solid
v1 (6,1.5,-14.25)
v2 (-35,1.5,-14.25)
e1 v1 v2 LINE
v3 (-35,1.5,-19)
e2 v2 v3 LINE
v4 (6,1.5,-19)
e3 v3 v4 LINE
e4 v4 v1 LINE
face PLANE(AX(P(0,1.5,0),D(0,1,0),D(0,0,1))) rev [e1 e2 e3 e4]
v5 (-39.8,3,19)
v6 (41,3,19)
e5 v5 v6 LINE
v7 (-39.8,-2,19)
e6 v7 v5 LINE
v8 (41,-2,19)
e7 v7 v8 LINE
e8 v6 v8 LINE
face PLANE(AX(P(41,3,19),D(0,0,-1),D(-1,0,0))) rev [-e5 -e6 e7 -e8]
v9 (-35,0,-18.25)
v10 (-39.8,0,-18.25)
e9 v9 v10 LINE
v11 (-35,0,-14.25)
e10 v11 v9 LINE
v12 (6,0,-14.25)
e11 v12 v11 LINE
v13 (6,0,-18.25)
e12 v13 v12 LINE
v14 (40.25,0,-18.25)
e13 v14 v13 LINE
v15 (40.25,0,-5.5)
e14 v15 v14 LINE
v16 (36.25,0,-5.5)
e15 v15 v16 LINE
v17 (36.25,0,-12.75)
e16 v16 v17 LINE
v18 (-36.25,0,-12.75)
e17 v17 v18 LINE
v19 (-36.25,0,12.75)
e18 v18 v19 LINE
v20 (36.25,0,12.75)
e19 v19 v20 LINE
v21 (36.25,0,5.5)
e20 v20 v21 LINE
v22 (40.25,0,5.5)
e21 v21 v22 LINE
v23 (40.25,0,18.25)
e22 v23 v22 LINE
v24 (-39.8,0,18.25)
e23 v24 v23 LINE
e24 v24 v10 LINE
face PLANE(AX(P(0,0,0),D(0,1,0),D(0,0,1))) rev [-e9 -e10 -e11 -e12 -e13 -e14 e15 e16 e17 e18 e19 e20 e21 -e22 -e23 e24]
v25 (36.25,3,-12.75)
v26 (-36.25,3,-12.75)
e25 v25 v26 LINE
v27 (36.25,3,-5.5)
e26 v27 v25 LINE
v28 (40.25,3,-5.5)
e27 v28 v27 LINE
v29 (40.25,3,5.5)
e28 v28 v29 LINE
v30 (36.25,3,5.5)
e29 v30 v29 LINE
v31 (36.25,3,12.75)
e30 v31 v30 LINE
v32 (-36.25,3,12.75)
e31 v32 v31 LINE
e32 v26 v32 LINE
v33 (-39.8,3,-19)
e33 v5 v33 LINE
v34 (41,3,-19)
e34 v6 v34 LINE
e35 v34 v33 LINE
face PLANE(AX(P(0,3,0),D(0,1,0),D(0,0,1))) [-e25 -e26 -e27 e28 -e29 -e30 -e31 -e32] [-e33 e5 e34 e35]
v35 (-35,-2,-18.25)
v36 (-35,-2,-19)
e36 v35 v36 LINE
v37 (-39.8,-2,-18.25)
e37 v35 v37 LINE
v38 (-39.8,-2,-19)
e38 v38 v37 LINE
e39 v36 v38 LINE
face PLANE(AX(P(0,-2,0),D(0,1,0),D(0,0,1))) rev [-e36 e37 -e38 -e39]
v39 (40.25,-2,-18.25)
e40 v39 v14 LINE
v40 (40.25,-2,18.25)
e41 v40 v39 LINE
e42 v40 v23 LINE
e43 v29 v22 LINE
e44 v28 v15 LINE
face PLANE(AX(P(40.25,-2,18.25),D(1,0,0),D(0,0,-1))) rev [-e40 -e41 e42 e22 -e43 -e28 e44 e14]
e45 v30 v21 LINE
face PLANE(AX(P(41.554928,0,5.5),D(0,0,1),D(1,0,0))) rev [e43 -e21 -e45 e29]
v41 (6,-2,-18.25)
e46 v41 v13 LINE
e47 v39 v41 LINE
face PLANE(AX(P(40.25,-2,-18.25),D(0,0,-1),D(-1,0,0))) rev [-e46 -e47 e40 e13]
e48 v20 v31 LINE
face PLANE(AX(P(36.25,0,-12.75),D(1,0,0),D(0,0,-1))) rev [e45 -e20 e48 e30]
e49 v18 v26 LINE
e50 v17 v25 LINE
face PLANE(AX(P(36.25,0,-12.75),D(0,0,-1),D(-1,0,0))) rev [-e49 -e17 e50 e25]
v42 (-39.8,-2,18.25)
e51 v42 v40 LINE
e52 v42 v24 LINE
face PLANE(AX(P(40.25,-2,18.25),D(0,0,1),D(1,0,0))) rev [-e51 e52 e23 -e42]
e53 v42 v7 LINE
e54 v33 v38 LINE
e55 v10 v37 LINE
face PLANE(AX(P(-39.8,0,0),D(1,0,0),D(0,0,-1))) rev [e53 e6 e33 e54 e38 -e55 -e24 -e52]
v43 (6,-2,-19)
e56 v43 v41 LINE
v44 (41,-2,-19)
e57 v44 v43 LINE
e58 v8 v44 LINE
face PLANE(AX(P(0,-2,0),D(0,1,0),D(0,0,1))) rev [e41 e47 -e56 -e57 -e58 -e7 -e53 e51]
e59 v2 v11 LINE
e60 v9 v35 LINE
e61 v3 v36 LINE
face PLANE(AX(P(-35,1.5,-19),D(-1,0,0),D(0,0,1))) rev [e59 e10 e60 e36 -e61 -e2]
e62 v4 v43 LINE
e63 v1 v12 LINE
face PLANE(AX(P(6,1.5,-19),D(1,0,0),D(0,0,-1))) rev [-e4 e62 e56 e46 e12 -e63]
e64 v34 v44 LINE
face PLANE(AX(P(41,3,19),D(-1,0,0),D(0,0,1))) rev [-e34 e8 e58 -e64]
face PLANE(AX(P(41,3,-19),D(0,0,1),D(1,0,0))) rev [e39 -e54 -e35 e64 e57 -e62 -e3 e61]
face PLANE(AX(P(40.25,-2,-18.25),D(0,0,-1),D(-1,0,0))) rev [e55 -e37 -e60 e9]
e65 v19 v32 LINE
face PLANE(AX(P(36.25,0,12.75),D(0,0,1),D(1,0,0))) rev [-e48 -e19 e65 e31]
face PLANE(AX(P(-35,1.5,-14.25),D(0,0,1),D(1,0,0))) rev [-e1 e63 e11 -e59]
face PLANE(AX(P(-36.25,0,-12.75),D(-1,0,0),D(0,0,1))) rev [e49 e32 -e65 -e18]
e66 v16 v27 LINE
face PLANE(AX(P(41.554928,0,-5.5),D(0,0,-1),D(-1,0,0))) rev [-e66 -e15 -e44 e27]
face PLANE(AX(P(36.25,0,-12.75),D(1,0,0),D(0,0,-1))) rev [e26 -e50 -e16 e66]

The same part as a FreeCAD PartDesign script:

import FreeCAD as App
import Part
import Sketcher
from FreeCAD import Vector
Q = App.Units.Quantity

doc = App.newDocument("Part")
body = doc.addObject("PartDesign::Body", "Body")

sketch1 = body.newObject("Sketcher::SketchObject", "Sketch")
sketch1.AttachmentSupport = (doc.getObject("XZ_Plane"), [""])
sketch1.MapMode = "FlatFace"
sketch1.addGeometry([
    Part.LineSegment(Vector(-41, -19, 0), Vector(-41, 19, 0)),
    Part.LineSegment(Vector(-41, 19, 0), Vector(41, 19, 0)),
    Part.LineSegment(Vector(41, 19, 0), Vector(41, -19, 0)),
    Part.LineSegment(Vector(41, -19, 0), Vector(-41, -19, 0)),
], False)
sketch1.addConstraint([
    Sketcher.Constraint("Coincident", 0, 2, 1, 1),
    Sketcher.Constraint("Coincident", 1, 2, 2, 1),
    Sketcher.Constraint("Coincident", 2, 2, 3, 1),
    Sketcher.Constraint("Coincident", 3, 2, 0, 1),
    Sketcher.Constraint("Vertical", 0),
    Sketcher.Constraint("Horizontal", 1),
    Sketcher.Constraint("Vertical", 2),
    Sketcher.Constraint("Horizontal", 3),
    Sketcher.Constraint("Symmetric", 0, 2, 2, 2, -1, 1),
    Sketcher.Constraint("DistanceX", 1, 1, 1, 2, Q("82 mm")),
    Sketcher.Constraint("DistanceY", 0, 1, 0, 2, Q("38 mm")),
])
pad1 = body.newObject("PartDesign::Pad", "Pad")
pad1.Profile = sketch1
pad1.Length = 3
pad1.Reversed = True

sketch2 = body.newObject("Sketcher::SketchObject", "Sketch001")
sketch2.AttachmentSupport = (doc.getObject("XZ_Plane"), [""])
sketch2.MapMode = "FlatFace"
sketch2.AttachmentOffset = App.Placement(Vector(0, 0, -3), App.Rotation())
sketch2.addGeometry([
    Part.LineSegment(Vector(-36, -13, 0), Vector(-36, 13, 0)),
    Part.LineSegment(Vector(-36, 13, 0), Vector(36, 13, 0)),
    Part.LineSegment(Vector(36, 13, 0), Vector(36, -13, 0)),
    Part.LineSegment(Vector(36, -13, 0), Vector(-36, -13, 0)),
], False)
sketch2.addConstraint([
    Sketcher.Constraint("Coincident", 0, 2, 1, 1),
    Sketcher.Constraint("Coincident", 1, 2, 2, 1),
    Sketcher.Constraint("Coincident", 2, 2, 3, 1),
    Sketcher.Constraint("Coincident", 3, 2, 0, 1),
    Sketcher.Constraint("Vertical", 0),
    Sketcher.Constraint("Horizontal", 1),
    Sketcher.Constraint("Vertical", 2),
    Sketcher.Constraint("Horizontal", 3),
    Sketcher.Constraint("Symmetric", 0, 2, 2, 2, -1, 1),
    Sketcher.Constraint("DistanceX", 1, 1, 1, 2, Q("72.5 mm")),
    Sketcher.Constraint("DistanceY", 0, 1, 0, 2, Q("25.5 mm")),
])
pocket1 = body.newObject("PartDesign::Pocket", "Pocket")
pocket1.Profile = sketch2
pocket1.Type = "ThroughAll"
pocket1.Reversed = True

sketch3 = body.newObject("Sketcher::SketchObject", "Sketch002")
sketch3.AttachmentSupport = (doc.getObject("XZ_Plane"), [""])
sketch3.MapMode = "FlatFace"
sketch3.addGeometry([
    Part.LineSegment(Vector(-35, -14.2, 0), Vector(-35, -19, 0)),
    Part.LineSegment(Vector(-35, -19, 0), Vector(6, -19, 0)),
    Part.LineSegment(Vector(6, -19, 0), Vector(6, -14.2, 0)),
    Part.LineSegment(Vector(6, -14.2, 0), Vector(-35, -14.2, 0)),
], False)
sketch3.addConstraint([
    Sketcher.Constraint("Coincident", 0, 2, 1, 1),
    Sketcher.Constraint("Coincident", 1, 2, 2, 1),
    Sketcher.Constraint("Coincident", 2, 2, 3, 1),
    Sketcher.Constraint("Coincident", 3, 2, 0, 1),
    Sketcher.Constraint("Vertical", 0),
    Sketcher.Constraint("Horizontal", 1),
    Sketcher.Constraint("Vertical", 2),
    Sketcher.Constraint("Horizontal", 3),
    Sketcher.Constraint("DistanceX", 1, 1, 1, 2, Q("41 mm")),
    Sketcher.Constraint("DistanceX", 0, 2, -1, 1, Q("35 mm")),
    Sketcher.Constraint("DistanceY", 0, 2, -1, 1, Q("19 mm")),
    Sketcher.Constraint("DistanceY", 0, 2, 0, 1, Q("4.75 mm")),
])
pocket2 = body.newObject("PartDesign::Pocket", "Pocket001")
pocket2.Profile = sketch3
pocket2.Length = 1.5

sketch4 = body.newObject("Sketcher::SketchObject", "Sketch003")
sketch4.AttachmentSupport = (doc.getObject("XZ_Plane"), [""])
sketch4.MapMode = "FlatFace"
sketch4.AttachmentOffset = App.Placement(Vector(0, 0, -3), App.Rotation())
sketch4.addGeometry([
    Part.LineSegment(Vector(32, -6, 0), Vector(32, 6, 0)),
    Part.LineSegment(Vector(32, 6, 0), Vector(42, 6, 0)),
    Part.LineSegment(Vector(42, 6, 0), Vector(42, -6, 0)),
    Part.LineSegment(Vector(42, -6, 0), Vector(32, -6, 0)),
], False)
sketch4.addConstraint([
    Sketcher.Constraint("Coincident", 0, 2, 1, 1),
    Sketcher.Constraint("Coincident", 1, 2, 2, 1),
    Sketcher.Constraint("Coincident", 2, 2, 3, 1),
    Sketcher.Constraint("Coincident", 3, 2, 0, 1),
    Sketcher.Constraint("Vertical", 0),
    Sketcher.Constraint("Horizontal", 1),
    Sketcher.Constraint("Vertical", 2),
    Sketcher.Constraint("Horizontal", 3),
    Sketcher.Constraint("DistanceY", 0, 1, 0, 2, Q("11 mm")),
    Sketcher.Constraint("DistanceY", -1, 1, 0, 2, Q("5.5 mm")),
    Sketcher.Constraint("DistanceX", 1, 1, 1, 2, Q("9.333075 mm")),
    Sketcher.Constraint("DistanceX", -1, 1, 1, 2, Q("41.554928 mm")),
])
pocket3 = body.newObject("PartDesign::Pocket", "Pocket002")
pocket3.Profile = sketch4
pocket3.Type = "ThroughAll"
pocket3.Reversed = True

sketch5 = body.newObject("Sketcher::SketchObject", "Sketch004")
sketch5.AttachmentSupport = (doc.getObject("XZ_Plane"), [""])
sketch5.MapMode = "FlatFace"
sketch5.addGeometry([
    Part.LineSegment(Vector(-41, -19, 0), Vector(-41, 19, 0)),
    Part.LineSegment(Vector(-41, 19, 0), Vector(41, 19, 0)),
    Part.LineSegment(Vector(41, 19, 0), Vector(41, -19, 0)),
    Part.LineSegment(Vector(41, -19, 0), Vector(-41, -19, 0)),
], False)
sketch5.addConstraint([
    Sketcher.Constraint("Coincident", 0, 2, 1, 1),
    Sketcher.Constraint("Coincident", 1, 2, 2, 1),
    Sketcher.Constraint("Coincident", 2, 2, 3, 1),
    Sketcher.Constraint("Coincident", 3, 2, 0, 1),
    Sketcher.Constraint("Vertical", 0),
    Sketcher.Constraint("Horizontal", 1),
    Sketcher.Constraint("Vertical", 2),
    Sketcher.Constraint("Horizontal", 3),
    Sketcher.Constraint("Symmetric", 0, 2, 2, 2, -1, 1),
    Sketcher.Constraint("DistanceX", 1, 1, 1, 2, Q("82 mm")),
    Sketcher.Constraint("DistanceY", 0, 1, 0, 2, Q("38 mm")),
])
pad2 = body.newObject("PartDesign::Pad", "Pad001")
pad2.Profile = sketch5
pad2.Length = 2

sketch6 = body.newObject("Sketcher::SketchObject", "Sketch005")
sketch6.AttachmentSupport = (doc.getObject("XZ_Plane"), [""])
sketch6.MapMode = "FlatFace"
sketch6.addGeometry([
    Part.LineSegment(Vector(-40, -18, 0), Vector(-40, 18, 0)),
    Part.LineSegment(Vector(-40, 18, 0), Vector(40, 18, 0)),
    Part.LineSegment(Vector(40, 18, 0), Vector(40, -18, 0)),
    Part.LineSegment(Vector(40, -18, 0), Vector(-40, -18, 0)),
], False)
sketch6.addConstraint([
    Sketcher.Constraint("Coincident", 0, 2, 1, 1),
    Sketcher.Constraint("Coincident", 1, 2, 2, 1),
    Sketcher.Constraint("Coincident", 2, 2, 3, 1),
    Sketcher.Constraint("Coincident", 3, 2, 0, 1),
    Sketcher.Constraint("Vertical", 0),
    Sketcher.Constraint("Horizontal", 1),
    Sketcher.Constraint("Vertical", 2),
    Sketcher.Constraint("Horizontal", 3),
    Sketcher.Constraint("Symmetric", 0, 2, 2, 2, -1, 1),
    Sketcher.Constraint("DistanceX", 1, 1, 1, 2, Q("80.5 mm")),
    Sketcher.Constraint("DistanceY", 0, 1, 0, 2, Q("36.5 mm")),
])
pocket4 = body.newObject("PartDesign::Pocket", "Pocket003")
pocket4.Profile = sketch6
pocket4.Type = "ThroughAll"
pocket4.Reversed = True

sketch7 = body.newObject("Sketcher::SketchObject", "Sketch006")
sketch7.AttachmentSupport = (doc.getObject("XZ_Plane"), [""])
sketch7.MapMode = "FlatFace"
sketch7.AttachmentOffset = App.Placement(Vector(0, 0, -1.5), App.Rotation())
sketch7.addGeometry([
    Part.LineSegment(Vector(-35, -14.2, 0), Vector(-35, -19, 0)),
    Part.LineSegment(Vector(-35, -19, 0), Vector(6, -19, 0)),
    Part.LineSegment(Vector(6, -19, 0), Vector(6, -14.2, 0)),
    Part.LineSegment(Vector(6, -14.2, 0), Vector(-35, -14.2, 0)),
], False)
sketch7.addConstraint([
    Sketcher.Constraint("Coincident", 0, 2, 1, 1),
    Sketcher.Constraint("Coincident", 1, 2, 2, 1),
    Sketcher.Constraint("Coincident", 2, 2, 3, 1),
    Sketcher.Constraint("Coincident", 3, 2, 0, 1),
    Sketcher.Constraint("Vertical", 0),
    Sketcher.Constraint("Horizontal", 1),
    Sketcher.Constraint("Vertical", 2),
    Sketcher.Constraint("Horizontal", 3),
    Sketcher.Constraint("DistanceX", 1, 1, 1, 2, Q("41 mm")),
    Sketcher.Constraint("DistanceX", 0, 2, -1, 1, Q("35 mm")),
    Sketcher.Constraint("DistanceY", 0, 2, -1, 1, Q("19 mm")),
    Sketcher.Constraint("DistanceY", 0, 2, 0, 1, Q("4.75 mm")),
])
pocket5 = body.newObject("PartDesign::Pocket", "Pocket004")
pocket5.Profile = sketch7
pocket5.Type = "ThroughAll"
pocket5.Reversed = True

sketch8 = body.newObject("Sketcher::SketchObject", "Sketch007")
sketch8.AttachmentSupport = (doc.getObject("XZ_Plane"), [""])
sketch8.MapMode = "FlatFace"
sketch8.addGeometry([
    Part.LineSegment(Vector(40.2, -5.5, 0), Vector(40.2, 5.5, 0)),
    Part.LineSegment(Vector(40.2, 5.5, 0), Vector(41, 5.5, 0)),
    Part.LineSegment(Vector(41, 5.5, 0), Vector(41, -5.5, 0)),
    Part.LineSegment(Vector(41, -5.5, 0), Vector(40.2, -5.5, 0)),
], False)
sketch8.addConstraint([
    Sketcher.Constraint("Coincident", 0, 2, 1, 1),
    Sketcher.Constraint("Coincident", 1, 2, 2, 1),
    Sketcher.Constraint("Coincident", 2, 2, 3, 1),
    Sketcher.Constraint("Coincident", 3, 2, 0, 1),
    Sketcher.Constraint("Vertical", 0),
    Sketcher.Constraint("Horizontal", 1),
    Sketcher.Constraint("Vertical", 2),
    Sketcher.Constraint("Horizontal", 3),
    Sketcher.Constraint("DistanceY", 0, 1, 0, 2, Q("11 mm")),
    Sketcher.Constraint("DistanceX", -1, 1, 1, 2, Q("41 mm")),
    Sketcher.Constraint("DistanceX", 1, 1, 1, 2, Q("0.75 mm")),
    Sketcher.Constraint("DistanceY", -1, 1, 0, 2, Q("5.5 mm")),
])
pad3 = body.newObject("PartDesign::Pad", "Pad002")
pad3.Profile = sketch8
pad3.Length = 3
pad3.Reversed = True

sketch9 = body.newObject("Sketcher::SketchObject", "Sketch008")
sketch9.AttachmentSupport = (doc.getObject("YZ_Plane"), [""])
sketch9.MapMode = "FlatFace"
sketch9.AttachmentOffset = App.Placement(Vector(0, 0, -41), App.Rotation())
sketch9.addGeometry([
    Part.LineSegment(Vector(3, -19, 0), Vector(-2, -19, 0)),
    Part.LineSegment(Vector(-2, -19, 0), Vector(-2, 19, 0)),
    Part.LineSegment(Vector(-2, 19, 0), Vector(3, 19, 0)),
    Part.LineSegment(Vector(3, 19, 0), Vector(3, -19, 0)),
], False)
sketch9.addConstraint([
    Sketcher.Constraint("Coincident", 0, 2, 1, 1),
    Sketcher.Constraint("Coincident", 1, 2, 2, 1),
    Sketcher.Constraint("Coincident", 2, 2, 3, 1),
    Sketcher.Constraint("Coincident", 3, 2, 0, 1),
    Sketcher.Constraint("Horizontal", 0),
    Sketcher.Constraint("Vertical", 1),
    Sketcher.Constraint("Horizontal", 2),
    Sketcher.Constraint("Vertical", 3),
    Sketcher.Constraint("DistanceX", 0, 2, 0, 1, Q("5 mm")),
    Sketcher.Constraint("DistanceY", 1, 1, 1, 2, Q("38 mm")),
    Sketcher.Constraint("DistanceX", 0, 2, -1, 1, Q("2 mm")),
    Sketcher.Constraint("DistanceY", 0, 2, -1, 1, Q("19 mm")),
])
pocket6 = body.newObject("PartDesign::Pocket", "Pocket005")
pocket6.Profile = sketch9
pocket6.Length = 1.2
pocket6.Reversed = True

doc.recompute()
